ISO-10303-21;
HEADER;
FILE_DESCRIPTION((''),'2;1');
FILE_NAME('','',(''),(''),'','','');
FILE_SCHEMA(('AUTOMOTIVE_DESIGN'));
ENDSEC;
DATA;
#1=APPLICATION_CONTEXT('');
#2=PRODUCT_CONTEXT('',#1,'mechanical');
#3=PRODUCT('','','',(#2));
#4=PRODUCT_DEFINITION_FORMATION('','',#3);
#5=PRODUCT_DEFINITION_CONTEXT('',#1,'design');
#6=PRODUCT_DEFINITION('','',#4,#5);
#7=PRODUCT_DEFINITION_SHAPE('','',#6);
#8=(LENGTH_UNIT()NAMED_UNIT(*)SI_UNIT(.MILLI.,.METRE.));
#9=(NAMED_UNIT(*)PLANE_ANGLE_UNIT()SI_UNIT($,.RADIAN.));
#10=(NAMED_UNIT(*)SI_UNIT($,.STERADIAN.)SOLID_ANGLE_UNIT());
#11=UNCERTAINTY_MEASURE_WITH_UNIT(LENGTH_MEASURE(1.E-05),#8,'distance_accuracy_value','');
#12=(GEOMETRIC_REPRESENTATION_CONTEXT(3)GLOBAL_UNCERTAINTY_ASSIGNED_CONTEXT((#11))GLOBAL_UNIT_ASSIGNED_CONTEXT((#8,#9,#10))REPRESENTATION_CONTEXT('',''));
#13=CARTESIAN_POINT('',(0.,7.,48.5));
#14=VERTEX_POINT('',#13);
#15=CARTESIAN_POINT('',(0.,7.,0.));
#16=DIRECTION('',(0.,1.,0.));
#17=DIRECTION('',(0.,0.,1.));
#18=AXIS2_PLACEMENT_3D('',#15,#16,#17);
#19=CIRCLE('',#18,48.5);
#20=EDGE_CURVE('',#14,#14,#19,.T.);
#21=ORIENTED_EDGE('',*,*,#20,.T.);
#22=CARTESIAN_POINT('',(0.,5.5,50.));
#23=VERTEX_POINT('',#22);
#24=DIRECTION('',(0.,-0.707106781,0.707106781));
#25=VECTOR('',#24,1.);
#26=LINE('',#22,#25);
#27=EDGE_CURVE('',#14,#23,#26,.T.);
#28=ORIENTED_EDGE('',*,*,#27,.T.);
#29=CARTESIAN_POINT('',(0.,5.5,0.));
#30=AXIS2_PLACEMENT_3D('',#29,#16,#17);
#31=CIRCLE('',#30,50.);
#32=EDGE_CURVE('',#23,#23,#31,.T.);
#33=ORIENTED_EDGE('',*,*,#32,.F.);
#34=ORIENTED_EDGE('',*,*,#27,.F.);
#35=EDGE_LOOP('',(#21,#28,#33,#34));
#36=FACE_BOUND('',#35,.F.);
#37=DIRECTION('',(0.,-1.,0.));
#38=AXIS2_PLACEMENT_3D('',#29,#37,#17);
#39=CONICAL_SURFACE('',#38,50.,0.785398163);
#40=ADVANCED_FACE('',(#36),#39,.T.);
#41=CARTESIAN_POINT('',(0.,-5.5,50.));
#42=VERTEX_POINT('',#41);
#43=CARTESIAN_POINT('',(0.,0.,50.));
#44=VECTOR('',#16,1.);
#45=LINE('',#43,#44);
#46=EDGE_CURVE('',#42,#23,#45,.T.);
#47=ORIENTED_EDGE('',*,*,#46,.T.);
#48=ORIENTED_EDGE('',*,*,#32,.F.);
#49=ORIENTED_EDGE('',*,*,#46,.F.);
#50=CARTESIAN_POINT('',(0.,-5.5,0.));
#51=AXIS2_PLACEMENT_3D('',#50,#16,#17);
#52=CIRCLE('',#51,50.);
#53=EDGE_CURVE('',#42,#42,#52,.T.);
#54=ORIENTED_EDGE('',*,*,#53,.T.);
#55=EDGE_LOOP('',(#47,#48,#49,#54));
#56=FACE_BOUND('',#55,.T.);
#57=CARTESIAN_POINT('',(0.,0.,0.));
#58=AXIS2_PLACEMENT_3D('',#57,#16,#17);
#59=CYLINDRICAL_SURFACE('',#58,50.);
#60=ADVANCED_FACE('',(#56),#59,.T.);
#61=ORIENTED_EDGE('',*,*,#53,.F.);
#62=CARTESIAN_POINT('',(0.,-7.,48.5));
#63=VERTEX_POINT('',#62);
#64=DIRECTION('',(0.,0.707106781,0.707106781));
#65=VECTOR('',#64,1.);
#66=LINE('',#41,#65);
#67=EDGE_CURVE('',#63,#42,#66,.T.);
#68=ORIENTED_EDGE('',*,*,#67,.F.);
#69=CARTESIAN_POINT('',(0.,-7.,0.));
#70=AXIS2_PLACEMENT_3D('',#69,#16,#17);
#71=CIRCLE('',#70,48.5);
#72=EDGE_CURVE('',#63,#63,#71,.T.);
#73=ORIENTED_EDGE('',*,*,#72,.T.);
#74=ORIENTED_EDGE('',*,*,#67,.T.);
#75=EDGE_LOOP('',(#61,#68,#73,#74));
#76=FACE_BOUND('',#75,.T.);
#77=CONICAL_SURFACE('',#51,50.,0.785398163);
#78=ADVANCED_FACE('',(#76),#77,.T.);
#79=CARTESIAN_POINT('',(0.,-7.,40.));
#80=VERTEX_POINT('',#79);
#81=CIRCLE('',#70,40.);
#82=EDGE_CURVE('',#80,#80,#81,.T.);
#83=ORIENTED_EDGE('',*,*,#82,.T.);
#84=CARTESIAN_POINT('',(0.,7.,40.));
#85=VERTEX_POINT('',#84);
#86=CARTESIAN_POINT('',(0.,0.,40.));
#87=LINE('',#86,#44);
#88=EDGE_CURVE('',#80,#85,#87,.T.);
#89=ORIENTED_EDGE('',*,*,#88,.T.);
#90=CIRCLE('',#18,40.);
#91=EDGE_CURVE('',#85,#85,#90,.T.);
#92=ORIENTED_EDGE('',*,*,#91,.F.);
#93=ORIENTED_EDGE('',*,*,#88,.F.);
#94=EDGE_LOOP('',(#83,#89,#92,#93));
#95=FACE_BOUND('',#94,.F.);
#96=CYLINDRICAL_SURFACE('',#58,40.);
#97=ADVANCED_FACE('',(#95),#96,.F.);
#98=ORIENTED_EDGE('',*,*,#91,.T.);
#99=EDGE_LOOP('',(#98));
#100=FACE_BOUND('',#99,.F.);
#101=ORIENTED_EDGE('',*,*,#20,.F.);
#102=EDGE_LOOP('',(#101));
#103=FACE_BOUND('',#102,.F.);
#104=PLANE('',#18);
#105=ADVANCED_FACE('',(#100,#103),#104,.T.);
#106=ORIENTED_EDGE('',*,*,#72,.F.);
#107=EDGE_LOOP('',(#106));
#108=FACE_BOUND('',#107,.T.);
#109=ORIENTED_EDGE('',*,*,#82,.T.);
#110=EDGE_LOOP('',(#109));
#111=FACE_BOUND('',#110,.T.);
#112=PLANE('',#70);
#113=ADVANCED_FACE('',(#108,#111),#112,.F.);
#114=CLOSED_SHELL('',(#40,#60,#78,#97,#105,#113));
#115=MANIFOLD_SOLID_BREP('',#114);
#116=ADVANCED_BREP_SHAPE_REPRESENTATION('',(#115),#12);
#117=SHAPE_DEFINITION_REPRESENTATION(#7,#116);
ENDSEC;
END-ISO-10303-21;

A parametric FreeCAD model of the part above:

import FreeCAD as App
import Part
import Sketcher


def edges_at(feature, points):
    """Names of the edges that pass closest to the given points."""
    edges = feature.Shape.Edges
    near = lambda p: min(range(len(edges)), key=lambda i: edges[i].distToShape(Part.Vertex(*p))[0])
    return sorted({f"Edge{near(p) + 1}" for p in points})


def add_polygon(sketch, points):
    """Adds a closed chain of lines whose ends are joined by coincident constraints."""
    first, n = sketch.GeometryCount, len(points)
    for a, b in zip(points, points[1:] + points[:1]):
        sketch.addGeometry(Part.LineSegment(App.Vector(*a, 0), App.Vector(*b, 0)), False)
    for i in range(n):
        sketch.addConstraint(Sketcher.Constraint("Coincident", first + i, 2, first + (i + 1) % n, 1))

doc = App.newDocument("Part")
params = doc.addObject("Spreadsheet::Sheet", "Params")
for row, (alias, value) in enumerate([
    ("sketch1_width", "14 mm"),
    ("sketch1_height", "10 mm"),
    ("revolution_angle", "360 deg"),
    ("chamfer_size", "1.5 mm"),
], start=1):
    params.set(f"A{row}", alias)
    params.set(f"B{row}", "=" + value)
    params.setAlias(f"B{row}", alias)

body = doc.addObject("PartDesign::Body", "Body")

# Sketch on YZ plane
sketch1 = doc.addObject("Sketcher::SketchObject", "Sketch")
body.addObject(sketch1)
sketch1.AttachmentSupport = (doc.YZ_Plane, [""])
sketch1.MapMode = "FlatFace"
add_polygon(sketch1, [(-7, 50), (-7, 40), (7, 40), (7, 50)])  # lines 0-3
sketch1.addConstraint([
    Sketcher.Constraint("Vertical", 0),
    Sketcher.Constraint("Horizontal", 1),
    Sketcher.Constraint("Vertical", 2),
    Sketcher.Constraint("Horizontal", 3),
    Sketcher.Constraint("DistanceX", 1, 1, 1, 2, 14.0),
    Sketcher.Constraint("DistanceY", 0, 2, 0, 1, 10.0),
    Sketcher.Constraint("DistanceX", 0, 2, -1, 1, 7.0),
    Sketcher.Constraint("DistanceY", -1, 1, 0, 2, 40.0),
])
sketch1.setExpression("Constraints[8]", "Params.sketch1_width")
sketch1.setExpression("Constraints[9]", "Params.sketch1_height")
revolution = doc.addObject("PartDesign::Revolution", "Revolution")
body.addObject(revolution)
revolution.Profile = sketch1
revolution.ReferenceAxis = (sketch1, ["H_Axis"])
revolution.setExpression("Angle", "Params.revolution_angle")
doc.recompute()

chamfer = doc.addObject("PartDesign::Chamfer", "Chamfer")
body.addObject(chamfer)
chamfer.Base = (revolution, edges_at(revolution, [(0, -7, -50), (0, 7, -50)]))
chamfer.setExpression("Size", "Params.chamfer_size")

doc.recompute()
